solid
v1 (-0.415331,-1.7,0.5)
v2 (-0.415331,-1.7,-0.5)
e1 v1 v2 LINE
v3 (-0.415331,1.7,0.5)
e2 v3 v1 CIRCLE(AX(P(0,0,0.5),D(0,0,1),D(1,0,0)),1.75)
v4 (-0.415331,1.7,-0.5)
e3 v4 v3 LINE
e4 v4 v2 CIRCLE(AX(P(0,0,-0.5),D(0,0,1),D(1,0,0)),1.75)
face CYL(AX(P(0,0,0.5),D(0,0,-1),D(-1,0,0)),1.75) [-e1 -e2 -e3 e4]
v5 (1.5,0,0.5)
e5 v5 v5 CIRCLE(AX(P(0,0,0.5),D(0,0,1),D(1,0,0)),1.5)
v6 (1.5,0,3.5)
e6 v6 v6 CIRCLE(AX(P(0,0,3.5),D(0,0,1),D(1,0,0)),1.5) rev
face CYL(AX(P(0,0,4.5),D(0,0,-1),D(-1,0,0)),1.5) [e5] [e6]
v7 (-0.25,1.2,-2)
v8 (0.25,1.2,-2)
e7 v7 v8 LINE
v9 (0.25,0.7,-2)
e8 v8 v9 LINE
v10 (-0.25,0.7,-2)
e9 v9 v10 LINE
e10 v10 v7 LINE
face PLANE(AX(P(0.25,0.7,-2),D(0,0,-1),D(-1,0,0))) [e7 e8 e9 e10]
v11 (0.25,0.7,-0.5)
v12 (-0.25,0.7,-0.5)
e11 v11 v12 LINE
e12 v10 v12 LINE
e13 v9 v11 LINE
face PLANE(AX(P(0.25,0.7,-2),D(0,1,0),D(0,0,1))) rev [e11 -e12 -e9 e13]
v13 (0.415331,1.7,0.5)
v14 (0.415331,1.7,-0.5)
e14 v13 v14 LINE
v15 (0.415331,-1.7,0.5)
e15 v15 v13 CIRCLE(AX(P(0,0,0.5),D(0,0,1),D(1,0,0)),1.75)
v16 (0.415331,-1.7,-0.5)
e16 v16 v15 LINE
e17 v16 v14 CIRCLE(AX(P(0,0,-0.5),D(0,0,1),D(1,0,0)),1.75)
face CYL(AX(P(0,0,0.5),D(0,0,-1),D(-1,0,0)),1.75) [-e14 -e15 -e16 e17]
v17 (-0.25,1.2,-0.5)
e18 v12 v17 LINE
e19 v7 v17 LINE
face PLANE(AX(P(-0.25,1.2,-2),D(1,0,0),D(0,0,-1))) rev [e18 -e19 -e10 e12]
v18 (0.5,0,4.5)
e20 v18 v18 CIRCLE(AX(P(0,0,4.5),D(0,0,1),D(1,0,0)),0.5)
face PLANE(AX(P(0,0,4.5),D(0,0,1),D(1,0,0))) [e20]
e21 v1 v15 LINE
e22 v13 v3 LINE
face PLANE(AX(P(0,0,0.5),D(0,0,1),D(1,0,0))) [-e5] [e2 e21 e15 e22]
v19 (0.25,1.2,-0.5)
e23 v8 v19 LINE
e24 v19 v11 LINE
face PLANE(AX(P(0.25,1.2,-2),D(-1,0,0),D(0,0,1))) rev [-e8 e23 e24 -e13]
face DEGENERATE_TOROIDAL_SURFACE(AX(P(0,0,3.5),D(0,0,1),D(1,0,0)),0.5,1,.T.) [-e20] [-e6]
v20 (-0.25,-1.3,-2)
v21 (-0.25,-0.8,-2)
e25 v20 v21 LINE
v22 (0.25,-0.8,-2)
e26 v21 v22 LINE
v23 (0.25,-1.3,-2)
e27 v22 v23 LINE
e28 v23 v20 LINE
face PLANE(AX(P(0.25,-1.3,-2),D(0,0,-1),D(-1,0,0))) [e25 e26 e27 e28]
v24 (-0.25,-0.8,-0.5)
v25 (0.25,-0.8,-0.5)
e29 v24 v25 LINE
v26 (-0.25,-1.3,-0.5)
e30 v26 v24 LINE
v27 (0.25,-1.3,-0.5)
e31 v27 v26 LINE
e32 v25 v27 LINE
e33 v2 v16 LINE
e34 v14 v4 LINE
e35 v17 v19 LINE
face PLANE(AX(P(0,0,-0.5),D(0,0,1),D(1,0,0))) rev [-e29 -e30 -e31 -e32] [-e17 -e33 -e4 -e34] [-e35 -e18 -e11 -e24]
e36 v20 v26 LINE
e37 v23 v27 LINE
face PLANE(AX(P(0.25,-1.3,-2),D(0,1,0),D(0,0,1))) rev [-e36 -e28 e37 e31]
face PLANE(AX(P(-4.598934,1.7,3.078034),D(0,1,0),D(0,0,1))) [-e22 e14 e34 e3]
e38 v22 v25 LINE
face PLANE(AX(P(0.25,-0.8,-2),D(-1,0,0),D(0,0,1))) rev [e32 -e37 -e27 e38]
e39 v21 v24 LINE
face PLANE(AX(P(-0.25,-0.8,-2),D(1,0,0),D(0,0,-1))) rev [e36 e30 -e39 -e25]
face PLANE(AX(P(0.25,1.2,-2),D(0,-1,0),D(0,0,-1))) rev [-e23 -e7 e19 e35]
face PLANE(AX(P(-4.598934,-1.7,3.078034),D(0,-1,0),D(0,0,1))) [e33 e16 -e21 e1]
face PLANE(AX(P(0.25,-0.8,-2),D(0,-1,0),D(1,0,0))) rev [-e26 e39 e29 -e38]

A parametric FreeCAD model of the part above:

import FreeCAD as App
import Part
import Sketcher

V = App.Vector
Q = App.Units.Quantity


def edges_at(feature, points):
    """Names of the edges that pass closest to the given points."""
    edges = feature.Shape.Edges
    near = lambda p: min(range(len(edges)), key=lambda i: edges[i].distToShape(Part.Vertex(*p))[0])
    return sorted({f"Edge{near(p) + 1}" for p in points})

doc = App.newDocument("Part")
body = doc.addObject("PartDesign::Body", "Body")

# Sketch on XY plane
sketch1 = body.newObject("Sketcher::SketchObject", "Sketch")
sketch1.AttachmentSupport = (doc.getObject("XY_Plane"), [""])
sketch1.MapMode = "FlatFace"
sketch1.addGeometry(Part.Circle(V(0, 0, 0), V(0, 0, 1), 1.8), False)
sketch1.addConstraint(Sketcher.Constraint("Coincident", 0, 3, -1, 1))
sketch1.addConstraint(Sketcher.Constraint("Diameter", 0, Q("3.5 mm")))
pad1 = body.newObject("PartDesign::Pad", "Pad")
pad1.Profile = sketch1
pad1.Length = 1
pad1.Midplane = True

# Sketch on XY plane
sketch2 = body.newObject("Sketcher::SketchObject", "Sketch001")
sketch2.AttachmentSupport = (doc.getObject("XY_Plane"), [""])
sketch2.MapMode = "FlatFace"
sketch2.AttachmentOffset = App.Placement(V(0, 0, 0.5), App.Rotation())
sketch2.addGeometry(Part.Circle(V(0, 0, 0), V(0, 0, 1), 1.5), False)
sketch2.addConstraint(Sketcher.Constraint("Coincident", 0, 3, -1, 1))
sketch2.addConstraint(Sketcher.Constraint("Diameter", 0, Q("3 mm")))
pad2 = body.newObject("PartDesign::Pad", "Pad001")
pad2.Profile = sketch2
pad2.Length = 4
doc.recompute()

fillet = body.newObject("PartDesign::Fillet", "Fillet")
fillet.Base = (pad2, edges_at(pad2, [(-1.5, 0, 4.5)]))
fillet.Radius = 1

# Sketch on XZ plane
sketch3 = body.newObject("Sketcher::SketchObject", "Sketch002")
sketch3.AttachmentSupport = (doc.getObject("XZ_Plane"), [""])
sketch3.MapMode = "FlatFace"
sketch3.AttachmentOffset = App.Placement(V(0, 0, -3), App.Rotation())
sketch3.addGeometry(Part.LineSegment(V(8, 3, 0), V(8, -3, 0)), False)
sketch3.addGeometry(Part.LineSegment(V(8, -3, 0), V(-5, -3, 0)), False)
sketch3.addGeometry(Part.LineSegment(V(-5, -3, 0), V(-5, 3, 0)), False)
sketch3.addGeometry(Part.LineSegment(V(-5, 3, 0), V(8, 3, 0)), False)
sketch3.addConstraint(Sketcher.Constraint("Coincident", 0, 2, 1, 1))
sketch3.addConstraint(Sketcher.Constraint("Coincident", 1, 2, 2, 1))
sketch3.addConstraint(Sketcher.Constraint("Coincident", 2, 2, 3, 1))
sketch3.addConstraint(Sketcher.Constraint("Coincident", 3, 2, 0, 1))
sketch3.addConstraint(Sketcher.Constraint("Vertical", 0))
sketch3.addConstraint(Sketcher.Constraint("Horizontal", 1))
sketch3.addConstraint(Sketcher.Constraint("Vertical", 2))
sketch3.addConstraint(Sketcher.Constraint("Horizontal", 3))
sketch3.addConstraint(Sketcher.Constraint("DistanceX", 1, 2, 1, 1, Q("13.081079 mm")))
sketch3.addConstraint(Sketcher.Constraint("DistanceY", 0, 2, 0, 1, Q("5.810496 mm")))
sketch3.addConstraint(Sketcher.Constraint("DistanceY", 0, 2, -1, 1, Q("2.732462 mm")))
sketch3.addConstraint(Sketcher.Constraint("DistanceX", -1, 1, 0, 2, Q("8.482145 mm")))
pocket1 = body.newObject("PartDesign::Pocket", "Pocket")
pocket1.Profile = sketch3
pocket1.Length = 1.3
pocket1.Reversed = True

# Sketch on XY plane
sketch4 = body.newObject("Sketcher::SketchObject", "Sketch003")
sketch4.AttachmentSupport = (doc.getObject("XY_Plane"), [""])
sketch4.MapMode = "FlatFace"
sketch4.AttachmentOffset = App.Placement(V(0, 0, -0.5), App.Rotation())
sketch4.addGeometry(Part.LineSegment(V(0.2, 1.2, 0), V(0.2, 0.7, 0)), False)
sketch4.addGeometry(Part.LineSegment(V(0.2, 0.7, 0), V(-0.2, 0.7, 0)), False)
sketch4.addGeometry(Part.LineSegment(V(-0.2, 0.7, 0), V(-0.2, 1.2, 0)), False)
sketch4.addGeometry(Part.LineSegment(V(-0.2, 1.2, 0), V(0.2, 1.2, 0)), False)
sketch4.addGeometry(Part.LineSegment(V(0.2, -0.8, 0), V(0.2, -1.3, 0)), False)
sketch4.addGeometry(Part.LineSegment(V(0.2, -1.3, 0), V(-0.2, -1.3, 0)), False)
sketch4.addGeometry(Part.LineSegment(V(-0.2, -1.3, 0), V(-0.2, -0.8, 0)), False)
sketch4.addGeometry(Part.LineSegment(V(-0.2, -0.8, 0), V(0.2, -0.8, 0)), False)
sketch4.addConstraint(Sketcher.Constraint("Coincident", 0, 2, 1, 1))
sketch4.addConstraint(Sketcher.Constraint("Coincident", 1, 2, 2, 1))
sketch4.addConstraint(Sketcher.Constraint("Coincident", 2, 2, 3, 1))
sketch4.addConstraint(Sketcher.Constraint("Coincident", 3, 2, 0, 1))
sketch4.addConstraint(Sketcher.Constraint("Coincident", 4, 2, 5, 1))
sketch4.addConstraint(Sketcher.Constraint("Coincident", 5, 2, 6, 1))
sketch4.addConstraint(Sketcher.Constraint("Coincident", 6, 2, 7, 1))
sketch4.addConstraint(Sketcher.Constraint("Coincident", 7, 2, 4, 1))
sketch4.addConstraint(Sketcher.Constraint("Vertical", 0))
sketch4.addConstraint(Sketcher.Constraint("Horizontal", 1))
sketch4.addConstraint(Sketcher.Constraint("Vertical", 2))
sketch4.addConstraint(Sketcher.Constraint("Horizontal", 3))
sketch4.addConstraint(Sketcher.Constraint("Vertical", 4))
sketch4.addConstraint(Sketcher.Constraint("Horizontal", 5))
sketch4.addConstraint(Sketcher.Constraint("Vertical", 6))
sketch4.addConstraint(Sketcher.Constraint("Horizontal", 7))
sketch4.addConstraint(Sketcher.Constraint("Vertical", 3, 2, 4, 2))
sketch4.addConstraint(Sketcher.Constraint("Vertical", 2, 2, 5, 2))
sketch4.addConstraint(Sketcher.Constraint("Equal", 7, 0))
sketch4.addConstraint(Sketcher.Constraint("Equal", 2, 4))
sketch4.addConstraint(Sketcher.Constraint("DistanceX", 1, 2, 1, 1, Q("0.5 mm")))
sketch4.addConstraint(Sketcher.Constraint("DistanceY", 4, 2, 0, 2, Q("2 mm")))
sketch4.addConstraint(Sketcher.Constraint("DistanceY", -1, 1, 0, 2, Q("0.7 mm")))
sketch4.addConstraint(Sketcher.Constraint("DistanceX", -1, 1, 0, 2, Q("0.25 mm")))
pad3 = body.newObject("PartDesign::Pad", "Pad002")
pad3.Profile = sketch4
pad3.Length = 1.5
pad3.Reversed = True
doc.recompute()

mirrored = body.newObject("PartDesign::Mirrored", "Mirrored")
mirrored.Originals = [pocket1]
mirrored.MirrorPlane = (doc.getObject("XZ_Plane"), [""])
body.Tip = mirrored

doc.recompute()
